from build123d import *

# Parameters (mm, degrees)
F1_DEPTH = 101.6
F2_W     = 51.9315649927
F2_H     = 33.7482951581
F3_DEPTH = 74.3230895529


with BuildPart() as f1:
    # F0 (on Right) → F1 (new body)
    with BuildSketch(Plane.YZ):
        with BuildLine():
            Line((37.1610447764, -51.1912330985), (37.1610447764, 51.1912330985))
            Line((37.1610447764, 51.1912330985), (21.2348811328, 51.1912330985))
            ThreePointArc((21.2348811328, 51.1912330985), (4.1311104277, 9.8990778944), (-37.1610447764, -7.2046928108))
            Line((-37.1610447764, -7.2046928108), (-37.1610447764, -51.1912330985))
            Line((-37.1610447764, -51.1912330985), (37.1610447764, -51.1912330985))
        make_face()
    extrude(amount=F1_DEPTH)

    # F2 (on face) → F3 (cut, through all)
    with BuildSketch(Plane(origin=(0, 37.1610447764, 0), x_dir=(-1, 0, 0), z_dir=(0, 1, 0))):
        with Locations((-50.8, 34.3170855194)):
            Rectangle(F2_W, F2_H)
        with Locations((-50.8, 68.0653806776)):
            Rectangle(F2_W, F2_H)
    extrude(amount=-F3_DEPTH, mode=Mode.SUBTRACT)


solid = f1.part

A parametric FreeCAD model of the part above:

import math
import FreeCAD as App
import Part
import Sketcher


def add_polygon(sketch, points):
    """Adds a closed chain of lines whose ends are joined by coincident constraints."""
    first, n = sketch.GeometryCount, len(points)
    for a, b in zip(points, points[1:] + points[:1]):
        sketch.addGeometry(Part.LineSegment(App.Vector(*a, 0), App.Vector(*b, 0)), False)
    for i in range(n):
        sketch.addConstraint(Sketcher.Constraint("Coincident", first + i, 2, first + (i + 1) % n, 1))

doc = App.newDocument("Part")
params = doc.addObject("Spreadsheet::Sheet", "Params")
for row, (alias, value) in enumerate([
    ("pad1_length", "4 in"),
], start=1):
    params.set(f"A{row}", alias)
    params.set(f"B{row}", "=" + value)
    params.setAlias(f"B{row}", alias)

body = doc.addObject("PartDesign::Body", "Body")

sketch1 = doc.addObject("Sketcher::SketchObject", "Sketch")
body.addObject(sketch1)
sketch1.AttachmentSupport = (doc.YZ_Plane, [""])
sketch1.MapMode = "FlatFace"
sketch1.addGeometry([
    Part.LineSegment(App.Vector(37, -51, 0), App.Vector(37, 51, 0)),
    Part.LineSegment(App.Vector(37, 51, 0), App.Vector(21, 51, 0)),
    Part.ArcOfCircle(Part.Circle(App.Vector(-37, 51, 0), App.Vector(0, 0, 1), 58), math.radians(-90), math.radians(0)),
    Part.LineSegment(App.Vector(-37, -7, 0), App.Vector(-37, -51, 0)),
    Part.LineSegment(App.Vector(-37, -51, 0), App.Vector(37, -51, 0)),
], False)
sketch1.addConstraint([
    Sketcher.Constraint("Coincident", 0, 2, 1, 1),
    Sketcher.Constraint("Coincident", 1, 2, 2, 2),
    Sketcher.Constraint("Coincident", 2, 1, 3, 1),
    Sketcher.Constraint("Coincident", 3, 2, 4, 1),
    Sketcher.Constraint("Coincident", 4, 2, 0, 1),
    Sketcher.Constraint("Vertical", 0),
    Sketcher.Constraint("Horizontal", 1),
    Sketcher.Constraint("Vertical", 3),
    Sketcher.Constraint("Horizontal", 4),
    Sketcher.Constraint("Symmetric", 0, 2, 3, 2, -1, 1),
    Sketcher.Constraint("Horizontal", 2, 3, 0, 2),
    Sketcher.Constraint("Radius", 2, 58.395926),
    Sketcher.Constraint("DistanceX", 4, 1, 4, 2, 74.32209),
    Sketcher.Constraint("DistanceY", 3, 2, 3, 1, 43.98654),
    Sketcher.Constraint("DistanceX", 1, 2, 1, 1, 15.926164),
])
pad1 = doc.addObject("PartDesign::Pad", "Pad")
body.addObject(pad1)
pad1.Profile = sketch1
pad1.setExpression("Length", "Params.pad1_length")

sketch2 = doc.addObject("Sketcher::SketchObject", "Sketch001")
body.addObject(sketch2)
sketch2.AttachmentSupport = (doc.XZ_Plane, [""])
sketch2.MapMode = "FlatFace"
sketch2.AttachmentOffset = App.Placement(App.Vector(0, 0, -37.161045), App.Rotation())
add_polygon(sketch2, [(77, 17), (25, 17), (25, 85), (77, 85)])
sketch2.addConstraint([
    Sketcher.Constraint("Horizontal", 0),
    Sketcher.Constraint("Vertical", 1),
    Sketcher.Constraint("Horizontal", 2),
    Sketcher.Constraint("Vertical", 3),
    Sketcher.Constraint("DistanceY", 1, 1, 1, 2, 67.49659),
    Sketcher.Constraint("DistanceX", 0, 2, 0, 1, 51.931565),
    Sketcher.Constraint("DistanceY", -1, 1, 1, 2, 84.939528),
    Sketcher.Constraint("DistanceX", -1, 1, 0, 2, 24.834218),
])
pocket1 = doc.addObject("PartDesign::Pocket", "Pocket")
body.addObject(pocket1)
pocket1.Profile = sketch2
pocket1.Type = "ThroughAll"
pocket1.Reversed = True

doc.recompute()
